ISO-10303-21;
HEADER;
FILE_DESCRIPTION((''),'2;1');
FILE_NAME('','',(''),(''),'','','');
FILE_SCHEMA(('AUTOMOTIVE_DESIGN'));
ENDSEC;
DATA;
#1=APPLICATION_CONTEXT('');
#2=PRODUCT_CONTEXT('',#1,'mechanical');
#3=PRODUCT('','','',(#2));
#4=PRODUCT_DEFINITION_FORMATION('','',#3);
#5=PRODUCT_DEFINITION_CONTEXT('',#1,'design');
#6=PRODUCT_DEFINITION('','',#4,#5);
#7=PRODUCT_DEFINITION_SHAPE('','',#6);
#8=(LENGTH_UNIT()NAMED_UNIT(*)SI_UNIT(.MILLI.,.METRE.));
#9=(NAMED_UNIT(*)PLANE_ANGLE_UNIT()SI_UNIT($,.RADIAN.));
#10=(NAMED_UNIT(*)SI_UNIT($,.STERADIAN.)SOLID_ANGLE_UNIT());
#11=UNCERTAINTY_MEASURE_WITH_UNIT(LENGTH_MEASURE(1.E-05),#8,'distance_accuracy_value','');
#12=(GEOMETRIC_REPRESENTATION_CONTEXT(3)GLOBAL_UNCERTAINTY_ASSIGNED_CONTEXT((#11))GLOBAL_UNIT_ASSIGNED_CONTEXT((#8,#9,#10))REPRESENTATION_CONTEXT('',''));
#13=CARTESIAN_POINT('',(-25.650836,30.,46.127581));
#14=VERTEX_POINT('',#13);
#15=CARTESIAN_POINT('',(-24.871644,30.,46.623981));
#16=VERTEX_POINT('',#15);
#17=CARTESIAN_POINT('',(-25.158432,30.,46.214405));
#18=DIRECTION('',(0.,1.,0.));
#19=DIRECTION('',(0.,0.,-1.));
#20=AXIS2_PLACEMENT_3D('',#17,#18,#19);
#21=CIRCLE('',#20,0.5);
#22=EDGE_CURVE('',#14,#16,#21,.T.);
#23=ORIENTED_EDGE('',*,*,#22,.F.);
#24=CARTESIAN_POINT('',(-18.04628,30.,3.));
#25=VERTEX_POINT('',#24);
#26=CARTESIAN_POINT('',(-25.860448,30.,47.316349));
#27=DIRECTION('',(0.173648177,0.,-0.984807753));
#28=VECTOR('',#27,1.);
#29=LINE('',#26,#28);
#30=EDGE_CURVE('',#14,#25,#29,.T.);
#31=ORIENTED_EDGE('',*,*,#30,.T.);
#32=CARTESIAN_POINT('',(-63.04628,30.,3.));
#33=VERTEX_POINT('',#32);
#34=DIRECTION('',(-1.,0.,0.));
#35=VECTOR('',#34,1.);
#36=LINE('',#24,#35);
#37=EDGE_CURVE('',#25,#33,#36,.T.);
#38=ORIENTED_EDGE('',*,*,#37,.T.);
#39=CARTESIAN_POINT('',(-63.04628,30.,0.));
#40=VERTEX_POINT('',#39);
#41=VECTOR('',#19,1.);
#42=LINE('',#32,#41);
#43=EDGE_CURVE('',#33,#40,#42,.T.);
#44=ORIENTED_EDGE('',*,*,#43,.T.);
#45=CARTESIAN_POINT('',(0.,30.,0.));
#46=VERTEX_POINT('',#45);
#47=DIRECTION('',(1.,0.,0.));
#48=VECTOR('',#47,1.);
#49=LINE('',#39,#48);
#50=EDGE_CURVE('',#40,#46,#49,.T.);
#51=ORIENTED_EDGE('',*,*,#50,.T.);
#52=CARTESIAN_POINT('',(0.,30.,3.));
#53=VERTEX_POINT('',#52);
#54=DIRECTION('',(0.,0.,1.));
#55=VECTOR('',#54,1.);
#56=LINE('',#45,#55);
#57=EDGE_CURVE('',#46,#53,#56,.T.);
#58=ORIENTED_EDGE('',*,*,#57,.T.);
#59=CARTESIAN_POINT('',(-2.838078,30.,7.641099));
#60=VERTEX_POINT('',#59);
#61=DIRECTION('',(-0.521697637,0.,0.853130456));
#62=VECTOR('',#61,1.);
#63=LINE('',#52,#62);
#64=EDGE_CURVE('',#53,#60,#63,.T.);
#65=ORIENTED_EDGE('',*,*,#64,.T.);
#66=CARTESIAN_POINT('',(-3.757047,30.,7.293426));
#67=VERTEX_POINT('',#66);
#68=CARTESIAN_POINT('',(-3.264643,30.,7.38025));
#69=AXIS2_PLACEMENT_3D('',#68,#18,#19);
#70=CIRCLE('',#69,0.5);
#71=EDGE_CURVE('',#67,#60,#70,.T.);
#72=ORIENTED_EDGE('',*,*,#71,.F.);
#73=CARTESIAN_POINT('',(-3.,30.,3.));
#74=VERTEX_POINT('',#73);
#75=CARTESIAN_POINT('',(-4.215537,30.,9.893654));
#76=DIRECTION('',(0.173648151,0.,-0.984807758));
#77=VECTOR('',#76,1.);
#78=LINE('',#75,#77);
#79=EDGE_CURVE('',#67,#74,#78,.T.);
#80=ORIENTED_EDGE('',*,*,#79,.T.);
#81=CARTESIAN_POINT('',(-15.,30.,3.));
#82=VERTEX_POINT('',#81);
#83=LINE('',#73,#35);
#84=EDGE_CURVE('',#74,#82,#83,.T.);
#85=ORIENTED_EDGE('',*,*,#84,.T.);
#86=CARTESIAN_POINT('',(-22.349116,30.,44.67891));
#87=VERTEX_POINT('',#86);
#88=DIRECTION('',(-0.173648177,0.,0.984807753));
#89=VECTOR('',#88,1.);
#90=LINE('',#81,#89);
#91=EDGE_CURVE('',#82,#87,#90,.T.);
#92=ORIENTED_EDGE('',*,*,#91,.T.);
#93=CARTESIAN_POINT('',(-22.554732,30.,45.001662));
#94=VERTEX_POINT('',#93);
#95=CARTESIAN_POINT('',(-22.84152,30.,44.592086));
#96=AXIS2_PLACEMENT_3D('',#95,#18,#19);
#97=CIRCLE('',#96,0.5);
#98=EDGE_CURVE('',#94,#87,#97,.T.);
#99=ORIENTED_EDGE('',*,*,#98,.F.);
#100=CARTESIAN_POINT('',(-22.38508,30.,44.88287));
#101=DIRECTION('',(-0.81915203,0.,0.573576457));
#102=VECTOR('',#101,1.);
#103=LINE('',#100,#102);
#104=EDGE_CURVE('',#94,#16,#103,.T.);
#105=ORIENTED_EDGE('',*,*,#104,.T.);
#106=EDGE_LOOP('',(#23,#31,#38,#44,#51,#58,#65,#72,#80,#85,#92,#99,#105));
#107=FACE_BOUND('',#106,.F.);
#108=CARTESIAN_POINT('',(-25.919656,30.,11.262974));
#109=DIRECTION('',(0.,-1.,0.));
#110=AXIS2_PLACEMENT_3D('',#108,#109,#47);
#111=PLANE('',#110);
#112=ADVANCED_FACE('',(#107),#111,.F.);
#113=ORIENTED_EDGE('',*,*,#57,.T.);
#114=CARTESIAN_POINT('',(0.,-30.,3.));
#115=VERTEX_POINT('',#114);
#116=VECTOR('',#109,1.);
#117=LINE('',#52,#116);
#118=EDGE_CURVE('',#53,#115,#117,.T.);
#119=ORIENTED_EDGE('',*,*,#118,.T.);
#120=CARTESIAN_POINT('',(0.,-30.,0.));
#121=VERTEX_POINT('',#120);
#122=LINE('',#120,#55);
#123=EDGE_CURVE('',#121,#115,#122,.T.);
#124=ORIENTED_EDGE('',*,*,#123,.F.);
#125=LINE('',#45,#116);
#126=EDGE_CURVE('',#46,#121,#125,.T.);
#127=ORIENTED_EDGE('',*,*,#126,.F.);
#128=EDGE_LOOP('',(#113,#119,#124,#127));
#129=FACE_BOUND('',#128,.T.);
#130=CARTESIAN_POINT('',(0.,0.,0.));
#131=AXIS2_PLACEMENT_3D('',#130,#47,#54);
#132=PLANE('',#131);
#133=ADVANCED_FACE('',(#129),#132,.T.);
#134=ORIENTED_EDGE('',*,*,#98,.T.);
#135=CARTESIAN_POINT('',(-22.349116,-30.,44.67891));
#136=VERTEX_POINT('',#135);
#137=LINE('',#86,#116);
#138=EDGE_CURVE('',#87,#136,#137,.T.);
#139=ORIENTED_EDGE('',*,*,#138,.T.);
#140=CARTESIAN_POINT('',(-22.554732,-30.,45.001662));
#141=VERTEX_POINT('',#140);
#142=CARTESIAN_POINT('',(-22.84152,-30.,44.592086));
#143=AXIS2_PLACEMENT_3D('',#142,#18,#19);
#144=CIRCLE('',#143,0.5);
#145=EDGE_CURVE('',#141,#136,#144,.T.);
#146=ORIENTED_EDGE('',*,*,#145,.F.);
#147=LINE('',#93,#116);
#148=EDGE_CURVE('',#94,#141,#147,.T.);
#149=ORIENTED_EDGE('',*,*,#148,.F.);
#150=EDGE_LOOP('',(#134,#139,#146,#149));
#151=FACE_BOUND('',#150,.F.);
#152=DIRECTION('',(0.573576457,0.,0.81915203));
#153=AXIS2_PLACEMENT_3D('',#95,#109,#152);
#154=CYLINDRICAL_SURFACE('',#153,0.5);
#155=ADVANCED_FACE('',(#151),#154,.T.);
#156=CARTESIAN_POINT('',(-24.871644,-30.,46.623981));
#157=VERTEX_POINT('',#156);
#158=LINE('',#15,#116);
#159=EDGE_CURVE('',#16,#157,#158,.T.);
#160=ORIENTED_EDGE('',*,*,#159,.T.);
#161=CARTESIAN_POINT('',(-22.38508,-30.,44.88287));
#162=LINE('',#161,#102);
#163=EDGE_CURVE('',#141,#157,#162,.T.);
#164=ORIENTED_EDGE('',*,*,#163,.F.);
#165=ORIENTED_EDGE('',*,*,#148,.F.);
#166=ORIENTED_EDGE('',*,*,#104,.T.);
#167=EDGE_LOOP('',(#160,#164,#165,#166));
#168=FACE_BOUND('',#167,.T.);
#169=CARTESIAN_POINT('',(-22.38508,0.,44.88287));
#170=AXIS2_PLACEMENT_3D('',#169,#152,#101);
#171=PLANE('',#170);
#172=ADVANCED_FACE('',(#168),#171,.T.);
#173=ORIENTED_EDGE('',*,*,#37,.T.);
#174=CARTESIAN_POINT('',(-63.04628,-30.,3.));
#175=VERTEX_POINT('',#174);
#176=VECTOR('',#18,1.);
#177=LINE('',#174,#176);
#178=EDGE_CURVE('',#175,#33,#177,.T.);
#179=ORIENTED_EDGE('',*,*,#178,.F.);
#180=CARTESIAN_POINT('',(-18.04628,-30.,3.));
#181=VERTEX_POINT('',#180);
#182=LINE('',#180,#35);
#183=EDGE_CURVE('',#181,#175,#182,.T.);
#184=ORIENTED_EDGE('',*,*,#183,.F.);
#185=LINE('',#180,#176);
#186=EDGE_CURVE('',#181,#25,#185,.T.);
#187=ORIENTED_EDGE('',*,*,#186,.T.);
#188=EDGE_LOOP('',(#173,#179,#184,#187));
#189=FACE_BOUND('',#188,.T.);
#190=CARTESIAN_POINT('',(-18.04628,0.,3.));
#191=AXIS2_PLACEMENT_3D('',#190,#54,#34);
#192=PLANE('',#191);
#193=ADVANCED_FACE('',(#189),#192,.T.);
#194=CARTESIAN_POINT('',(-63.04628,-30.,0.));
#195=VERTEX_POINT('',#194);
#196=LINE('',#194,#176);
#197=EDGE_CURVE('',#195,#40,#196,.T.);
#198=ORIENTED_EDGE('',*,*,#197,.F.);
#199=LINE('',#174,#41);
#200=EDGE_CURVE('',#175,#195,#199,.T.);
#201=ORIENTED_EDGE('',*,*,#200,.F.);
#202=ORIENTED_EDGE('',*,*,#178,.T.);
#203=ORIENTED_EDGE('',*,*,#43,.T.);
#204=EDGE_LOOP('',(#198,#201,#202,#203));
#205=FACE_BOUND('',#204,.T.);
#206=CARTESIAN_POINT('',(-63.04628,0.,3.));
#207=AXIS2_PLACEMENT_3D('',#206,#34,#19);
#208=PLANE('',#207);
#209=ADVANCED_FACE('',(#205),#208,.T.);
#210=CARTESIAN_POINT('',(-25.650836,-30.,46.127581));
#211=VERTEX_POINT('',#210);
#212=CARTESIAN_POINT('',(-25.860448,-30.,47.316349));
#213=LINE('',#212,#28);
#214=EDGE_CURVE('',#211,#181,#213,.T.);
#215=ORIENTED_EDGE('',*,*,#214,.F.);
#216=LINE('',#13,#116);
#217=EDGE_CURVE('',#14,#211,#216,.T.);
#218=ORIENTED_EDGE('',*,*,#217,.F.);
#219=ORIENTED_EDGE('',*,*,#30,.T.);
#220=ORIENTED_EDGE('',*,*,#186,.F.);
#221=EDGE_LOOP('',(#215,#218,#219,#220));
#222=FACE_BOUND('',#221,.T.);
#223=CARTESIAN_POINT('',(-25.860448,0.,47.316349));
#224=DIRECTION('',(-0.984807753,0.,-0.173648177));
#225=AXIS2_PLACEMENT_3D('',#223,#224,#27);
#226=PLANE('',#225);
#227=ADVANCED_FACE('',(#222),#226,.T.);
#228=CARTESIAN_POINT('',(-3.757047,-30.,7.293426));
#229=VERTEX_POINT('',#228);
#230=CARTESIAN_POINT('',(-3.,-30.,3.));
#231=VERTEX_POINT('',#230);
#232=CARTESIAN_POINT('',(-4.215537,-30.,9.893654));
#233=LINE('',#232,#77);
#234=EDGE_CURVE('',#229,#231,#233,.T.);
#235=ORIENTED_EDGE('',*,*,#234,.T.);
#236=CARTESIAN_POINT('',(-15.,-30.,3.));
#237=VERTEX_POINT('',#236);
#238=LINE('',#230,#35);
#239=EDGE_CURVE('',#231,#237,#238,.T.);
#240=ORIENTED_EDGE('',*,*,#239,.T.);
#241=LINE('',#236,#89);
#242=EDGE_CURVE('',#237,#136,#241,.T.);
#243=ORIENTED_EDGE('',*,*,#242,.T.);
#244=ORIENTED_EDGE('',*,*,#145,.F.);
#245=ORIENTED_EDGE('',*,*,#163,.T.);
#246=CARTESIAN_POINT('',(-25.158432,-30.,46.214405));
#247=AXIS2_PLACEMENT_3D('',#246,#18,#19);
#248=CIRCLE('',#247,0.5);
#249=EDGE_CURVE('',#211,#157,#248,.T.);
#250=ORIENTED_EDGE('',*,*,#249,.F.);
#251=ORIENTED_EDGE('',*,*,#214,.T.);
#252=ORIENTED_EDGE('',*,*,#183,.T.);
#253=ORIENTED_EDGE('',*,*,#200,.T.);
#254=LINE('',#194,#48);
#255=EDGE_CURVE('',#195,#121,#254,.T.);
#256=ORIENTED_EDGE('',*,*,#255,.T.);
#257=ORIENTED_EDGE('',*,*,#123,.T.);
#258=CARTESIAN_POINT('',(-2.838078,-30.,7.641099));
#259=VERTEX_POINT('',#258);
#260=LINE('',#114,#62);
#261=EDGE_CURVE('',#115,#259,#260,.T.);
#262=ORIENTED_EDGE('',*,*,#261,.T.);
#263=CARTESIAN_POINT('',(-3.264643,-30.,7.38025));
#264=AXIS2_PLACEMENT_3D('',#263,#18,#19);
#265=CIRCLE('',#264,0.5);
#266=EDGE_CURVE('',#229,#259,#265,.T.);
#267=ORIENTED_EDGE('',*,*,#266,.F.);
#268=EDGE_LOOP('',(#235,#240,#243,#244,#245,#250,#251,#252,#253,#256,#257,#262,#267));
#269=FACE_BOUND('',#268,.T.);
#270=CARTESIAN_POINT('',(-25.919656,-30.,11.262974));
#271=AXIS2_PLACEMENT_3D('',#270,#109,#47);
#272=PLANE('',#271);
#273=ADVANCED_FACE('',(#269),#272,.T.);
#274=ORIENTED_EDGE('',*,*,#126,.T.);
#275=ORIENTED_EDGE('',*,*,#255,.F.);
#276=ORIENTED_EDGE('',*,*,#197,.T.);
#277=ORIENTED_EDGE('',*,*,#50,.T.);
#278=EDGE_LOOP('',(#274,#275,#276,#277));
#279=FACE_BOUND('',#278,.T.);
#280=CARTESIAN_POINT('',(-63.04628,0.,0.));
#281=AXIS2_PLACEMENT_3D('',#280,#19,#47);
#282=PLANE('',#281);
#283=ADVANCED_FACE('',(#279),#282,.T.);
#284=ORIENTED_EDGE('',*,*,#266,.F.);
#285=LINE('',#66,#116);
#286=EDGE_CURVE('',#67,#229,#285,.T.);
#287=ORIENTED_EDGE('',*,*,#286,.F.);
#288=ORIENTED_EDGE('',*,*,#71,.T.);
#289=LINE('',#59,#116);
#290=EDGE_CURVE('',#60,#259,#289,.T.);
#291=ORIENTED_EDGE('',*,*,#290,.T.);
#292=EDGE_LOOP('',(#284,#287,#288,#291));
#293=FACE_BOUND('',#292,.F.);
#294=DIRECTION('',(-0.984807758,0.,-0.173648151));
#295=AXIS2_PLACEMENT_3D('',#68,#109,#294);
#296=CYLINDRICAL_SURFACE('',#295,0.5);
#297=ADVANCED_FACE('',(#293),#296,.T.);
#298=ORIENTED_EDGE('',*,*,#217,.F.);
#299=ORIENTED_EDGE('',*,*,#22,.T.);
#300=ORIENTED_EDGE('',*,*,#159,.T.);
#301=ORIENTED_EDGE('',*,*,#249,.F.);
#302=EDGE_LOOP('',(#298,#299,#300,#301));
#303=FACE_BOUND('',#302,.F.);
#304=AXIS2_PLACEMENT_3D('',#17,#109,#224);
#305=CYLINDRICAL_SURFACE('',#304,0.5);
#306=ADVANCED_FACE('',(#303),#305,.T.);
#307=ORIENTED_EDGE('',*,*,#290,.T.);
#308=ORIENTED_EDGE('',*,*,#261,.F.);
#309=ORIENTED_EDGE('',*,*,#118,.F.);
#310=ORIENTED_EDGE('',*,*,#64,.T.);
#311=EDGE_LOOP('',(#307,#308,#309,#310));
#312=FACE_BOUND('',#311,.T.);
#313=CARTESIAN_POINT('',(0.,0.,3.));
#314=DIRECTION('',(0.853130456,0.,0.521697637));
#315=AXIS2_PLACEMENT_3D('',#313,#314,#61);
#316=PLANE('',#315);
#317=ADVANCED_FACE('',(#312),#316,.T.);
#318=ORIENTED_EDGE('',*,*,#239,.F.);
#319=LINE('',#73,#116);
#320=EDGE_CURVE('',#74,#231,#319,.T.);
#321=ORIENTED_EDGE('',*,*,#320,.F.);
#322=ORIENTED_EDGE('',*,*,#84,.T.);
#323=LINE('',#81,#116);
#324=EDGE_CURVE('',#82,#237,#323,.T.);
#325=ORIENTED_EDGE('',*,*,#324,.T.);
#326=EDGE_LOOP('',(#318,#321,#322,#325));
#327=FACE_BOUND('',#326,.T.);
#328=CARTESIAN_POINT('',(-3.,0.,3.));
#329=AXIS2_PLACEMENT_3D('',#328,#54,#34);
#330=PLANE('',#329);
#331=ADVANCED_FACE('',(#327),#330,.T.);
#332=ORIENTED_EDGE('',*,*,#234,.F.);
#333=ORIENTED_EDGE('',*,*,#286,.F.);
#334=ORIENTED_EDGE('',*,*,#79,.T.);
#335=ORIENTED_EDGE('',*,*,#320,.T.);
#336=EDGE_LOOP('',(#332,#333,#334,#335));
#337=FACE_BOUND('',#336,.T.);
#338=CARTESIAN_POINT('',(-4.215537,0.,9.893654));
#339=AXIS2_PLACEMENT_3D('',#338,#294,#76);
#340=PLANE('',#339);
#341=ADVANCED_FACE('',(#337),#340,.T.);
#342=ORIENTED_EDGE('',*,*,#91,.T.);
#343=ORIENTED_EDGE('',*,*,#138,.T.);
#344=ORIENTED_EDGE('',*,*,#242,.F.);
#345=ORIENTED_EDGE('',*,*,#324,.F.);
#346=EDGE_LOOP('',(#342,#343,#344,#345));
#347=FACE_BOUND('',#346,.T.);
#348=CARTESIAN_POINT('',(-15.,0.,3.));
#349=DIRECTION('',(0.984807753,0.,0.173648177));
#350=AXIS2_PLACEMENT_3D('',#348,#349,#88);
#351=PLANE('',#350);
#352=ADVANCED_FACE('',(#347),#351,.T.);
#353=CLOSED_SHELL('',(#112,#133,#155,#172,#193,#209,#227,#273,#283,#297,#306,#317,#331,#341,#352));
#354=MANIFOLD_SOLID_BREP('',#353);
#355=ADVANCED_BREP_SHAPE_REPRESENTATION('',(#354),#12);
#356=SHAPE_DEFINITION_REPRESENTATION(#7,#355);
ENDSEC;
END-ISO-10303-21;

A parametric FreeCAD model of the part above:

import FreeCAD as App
import Part
import Sketcher
Q = App.Units.Quantity


def edges_at(feature, points):
    """Names of the edges that pass closest to the given points."""
    edges = feature.Shape.Edges
    near = lambda p: min(range(len(edges)), key=lambda i: edges[i].distToShape(Part.Vertex(*p))[0])
    return sorted({f"Edge{near(p) + 1}" for p in points})

doc = App.newDocument("Part")
params = doc.addObject("Spreadsheet::Sheet", "Params")
for row, (alias, value) in enumerate([
    ("sketch1_width", "12 mm"),
    ("sketch1_width2", "45 mm"),
    ("sketch1_height", "3 mm"),
    ("sketch1_length", "7 mm"),
    ("sketch1_length2", "45 mm"),
    ("pad1_length", "60 mm"),
    ("fillet_radius", "0.5 mm"),
], start=1):
    params.set(f"A{row}", alias)
    params.set(f"B{row}", "=" + value)
    params.setAlias(f"B{row}", alias)

body = doc.addObject("PartDesign::Body", "Body")

# Sketch on XZ plane
sketch1 = body.newObject("Sketcher::SketchObject", "Sketch")
sketch1.AttachmentSupport = (doc.getObject("XZ_Plane"), [""])
sketch1.MapMode = "FlatFace"
sketch1.addGeometry(Part.LineSegment(App.Vector(-63, 0, 0), App.Vector(0, 0, 0)), False)
sketch1.addGeometry(Part.LineSegment(App.Vector(0, 0, 0), App.Vector(0, 3, 0)), False)
sketch1.addGeometry(Part.LineSegment(App.Vector(0, 3, 0), App.Vector(-4.2, 9.9, 0)), False)
sketch1.addGeometry(Part.LineSegment(App.Vector(-4.2, 9.9, 0), App.Vector(-3, 3, 0)), False)
sketch1.addGeometry(Part.LineSegment(App.Vector(-3, 3, 0), App.Vector(-15, 3, 0)), False)
sketch1.addGeometry(Part.LineSegment(App.Vector(-15, 3, 0), App.Vector(-22.4, 44.9, 0)), False)
sketch1.addGeometry(Part.LineSegment(App.Vector(-22.4, 44.9, 0), App.Vector(-25.9, 47.3, 0)), False)
sketch1.addGeometry(Part.LineSegment(App.Vector(-25.9, 47.3, 0), App.Vector(-18, 3, 0)), False)
sketch1.addGeometry(Part.LineSegment(App.Vector(-18, 3, 0), App.Vector(-63, 3, 0)), False)
sketch1.addGeometry(Part.LineSegment(App.Vector(-63, 3, 0), App.Vector(-63, 0, 0)), False)
sketch1.addConstraint(Sketcher.Constraint("Coincident", 0, 2, 1, 1))
sketch1.addConstraint(Sketcher.Constraint("Coincident", 1, 2, 2, 1))
sketch1.addConstraint(Sketcher.Constraint("Coincident", 2, 2, 3, 1))
sketch1.addConstraint(Sketcher.Constraint("Coincident", 3, 2, 4, 1))
sketch1.addConstraint(Sketcher.Constraint("Coincident", 4, 2, 5, 1))
sketch1.addConstraint(Sketcher.Constraint("Coincident", 5, 2, 6, 1))
sketch1.addConstraint(Sketcher.Constraint("Coincident", 6, 2, 7, 1))
sketch1.addConstraint(Sketcher.Constraint("Coincident", 7, 2, 8, 1))
sketch1.addConstraint(Sketcher.Constraint("Coincident", 8, 2, 9, 1))
sketch1.addConstraint(Sketcher.Constraint("Coincident", 9, 2, 0, 1))
sketch1.addConstraint(Sketcher.Constraint("Horizontal", 0))
sketch1.addConstraint(Sketcher.Constraint("Vertical", 1))
sketch1.addConstraint(Sketcher.Constraint("Horizontal", 4))
sketch1.addConstraint(Sketcher.Constraint("Horizontal", 8))
sketch1.addConstraint(Sketcher.Constraint("Vertical", 9))
sketch1.addConstraint(Sketcher.Constraint("Coincident", 0, 2, -1, 1))
sketch1.addConstraint(Sketcher.Constraint("Parallel", 3, 5))
sketch1.addConstraint(Sketcher.Constraint("Parallel", 5, 7))
sketch1.addConstraint(Sketcher.Constraint("Horizontal", 1, 2, 3, 2))
sketch1.addConstraint(Sketcher.Constraint("Horizontal", 4, 2, 7, 2))
sketch1.addConstraint(Sketcher.Constraint("DistanceX", 4, 2, 4, 1, Q("12 mm")))
sketch1.addConstraint(Sketcher.Constraint("DistanceX", 8, 2, 8, 1, Q("45 mm")))
sketch1.addConstraint(Sketcher.Constraint("DistanceY", 1, 1, 1, 2, Q("3 mm")))
sketch1.addConstraint(Sketcher.Constraint("Angle", 3, Q("-80.000002 deg")))
sketch1.addConstraint(Sketcher.Constraint("Angle", 6, Q("144.999999 deg")))
sketch1.addConstraint(Sketcher.Constraint("Distance", 3, Q("7 mm")))
sketch1.addConstraint(Sketcher.Constraint("Distance", 7, Q("45 mm")))
sketch1.addConstraint(Sketcher.Constraint("DistanceX", 3, 2, -1, 1, Q("3 mm")))
sketch1.addConstraint(Sketcher.Constraint("DistanceX", 0, 1, 0, 2, Q("63.04628 mm")))
sketch1.setExpression("Constraints[20]", "Params.sketch1_width")
sketch1.setExpression("Constraints[21]", "Params.sketch1_width2")
sketch1.setExpression("Constraints[22]", "Params.sketch1_height")
sketch1.setExpression("Constraints[25]", "Params.sketch1_length")
sketch1.setExpression("Constraints[26]", "Params.sketch1_length2")
pad1 = body.newObject("PartDesign::Pad", "Pad")
pad1.Profile = sketch1
pad1.setExpression("Length", "Params.pad1_length")
pad1.Midplane = True
doc.recompute()

fillet = body.newObject("PartDesign::Fillet", "Fillet")
fillet.Base = (pad1, edges_at(pad1, [(-22.385, 0, 44.883), (-4.216, 0, 9.894), (-25.86, 0, 47.316)]))
fillet.setExpression("Radius", "Params.fillet_radius")

doc.recompute()
